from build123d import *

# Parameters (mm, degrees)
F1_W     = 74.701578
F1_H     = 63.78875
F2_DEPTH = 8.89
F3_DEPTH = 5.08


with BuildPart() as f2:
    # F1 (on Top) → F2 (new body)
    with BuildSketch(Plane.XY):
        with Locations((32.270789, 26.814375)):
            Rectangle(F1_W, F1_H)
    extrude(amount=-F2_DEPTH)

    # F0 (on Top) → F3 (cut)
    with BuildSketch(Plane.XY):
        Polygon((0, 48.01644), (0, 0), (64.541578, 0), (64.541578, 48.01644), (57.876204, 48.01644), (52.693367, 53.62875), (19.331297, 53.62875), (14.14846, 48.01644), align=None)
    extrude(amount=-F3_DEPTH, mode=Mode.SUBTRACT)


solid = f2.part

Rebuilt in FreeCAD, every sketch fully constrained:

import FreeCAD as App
import Part
import Sketcher
Q = App.Units.Quantity

doc = App.newDocument("Part")
body = doc.addObject("PartDesign::Body", "Body")

# Sketch on XY plane
sketch1 = body.newObject("Sketcher::SketchObject", "Sketch")
sketch1.AttachmentSupport = (doc.getObject("XY_Plane"), [""])
sketch1.MapMode = "FlatFace"
sketch1.addGeometry(Part.LineSegment(App.Vector(-5.08, 58.70875, 0), App.Vector(-5.08, -5.08, 0)), False)
sketch1.addGeometry(Part.LineSegment(App.Vector(-5.08, -5.08, 0), App.Vector(69.621578, -5.08, 0)), False)
sketch1.addGeometry(Part.LineSegment(App.Vector(69.621578, -5.08, 0), App.Vector(69.621578, 58.70875, 0)), False)
sketch1.addGeometry(Part.LineSegment(App.Vector(69.621578, 58.70875, 0), App.Vector(-5.08, 58.70875, 0)), False)
sketch1.addConstraint(Sketcher.Constraint("Coincident", 0, 2, 1, 1))
sketch1.addConstraint(Sketcher.Constraint("Coincident", 1, 2, 2, 1))
sketch1.addConstraint(Sketcher.Constraint("Coincident", 2, 2, 3, 1))
sketch1.addConstraint(Sketcher.Constraint("Coincident", 3, 2, 0, 1))
sketch1.addConstraint(Sketcher.Constraint("Vertical", 0))
sketch1.addConstraint(Sketcher.Constraint("Horizontal", 1))
sketch1.addConstraint(Sketcher.Constraint("Vertical", 2))
sketch1.addConstraint(Sketcher.Constraint("Horizontal", 3))
sketch1.addConstraint(Sketcher.Constraint("DistanceX", 0, 2, -1, 1, Q("0.2 in")))
sketch1.addConstraint(Sketcher.Constraint("DistanceY", 0, 2, -1, 1, Q("0.2 in")))
sketch1.addConstraint(Sketcher.Constraint("DistanceY", 0, 2, 0, 1, Q("63.78875 mm")))
sketch1.addConstraint(Sketcher.Constraint("DistanceX", 1, 1, 1, 2, Q("74.701578 mm")))
pad1 = body.newObject("PartDesign::Pad", "Pad")
pad1.Profile = sketch1
pad1.Length = Q("0.35 in")
pad1.Reversed = True

# Sketch on XY plane
sketch2 = body.newObject("Sketcher::SketchObject", "Sketch001")
sketch2.AttachmentSupport = (doc.getObject("XY_Plane"), [""])
sketch2.MapMode = "FlatFace"
sketch2.addGeometry(Part.LineSegment(App.Vector(0, 48.01644, 0), App.Vector(0, 0, 0)), False)
sketch2.addGeometry(Part.LineSegment(App.Vector(0, 0, 0), App.Vector(64.541578, 0, 0)), False)
sketch2.addGeometry(Part.LineSegment(App.Vector(64.541578, 0, 0), App.Vector(64.541578, 48.01644, 0)), False)
sketch2.addGeometry(Part.LineSegment(App.Vector(64.541578, 48.01644, 0), App.Vector(57.876204, 48.01644, 0)), False)
sketch2.addGeometry(Part.LineSegment(App.Vector(57.876204, 48.01644, 0), App.Vector(52.693367, 53.62875, 0)), False)
sketch2.addGeometry(Part.LineSegment(App.Vector(52.693367, 53.62875, 0), App.Vector(19.331297, 53.62875, 0)), False)
sketch2.addGeometry(Part.LineSegment(App.Vector(19.331297, 53.62875, 0), App.Vector(14.14846, 48.01644, 0)), False)
sketch2.addGeometry(Part.LineSegment(App.Vector(14.14846, 48.01644, 0), App.Vector(0, 48.01644, 0)), False)
sketch2.addConstraint(Sketcher.Constraint("Coincident", 0, 2, 1, 1))
sketch2.addConstraint(Sketcher.Constraint("Coincident", 1, 2, 2, 1))
sketch2.addConstraint(Sketcher.Constraint("Coincident", 2, 2, 3, 1))
sketch2.addConstraint(Sketcher.Constraint("Coincident", 3, 2, 4, 1))
sketch2.addConstraint(Sketcher.Constraint("Coincident", 4, 2, 5, 1))
sketch2.addConstraint(Sketcher.Constraint("Coincident", 5, 2, 6, 1))
sketch2.addConstraint(Sketcher.Constraint("Coincident", 6, 2, 7, 1))
sketch2.addConstraint(Sketcher.Constraint("Coincident", 7, 2, 0, 1))
sketch2.addConstraint(Sketcher.Constraint("Vertical", 0))
sketch2.addConstraint(Sketcher.Constraint("Horizontal", 1))
sketch2.addConstraint(Sketcher.Constraint("Vertical", 2))
sketch2.addConstraint(Sketcher.Constraint("Horizontal", 3))
sketch2.addConstraint(Sketcher.Constraint("Horizontal", 5))
sketch2.addConstraint(Sketcher.Constraint("Horizontal", 7))
sketch2.addConstraint(Sketcher.Constraint("Coincident", 0, 2, -1, 1))
sketch2.addConstraint(Sketcher.Constraint("Horizontal", 3, 2, 6, 2))
sketch2.addConstraint(Sketcher.Constraint("Equal", 4, 6))
sketch2.addConstraint(Sketcher.Constraint("DistanceX", 1, 1, 1, 2, Q("64.541578 mm")))
sketch2.addConstraint(Sketcher.Constraint("DistanceX", 5, 2, 5, 1, Q("33.36207 mm")))
sketch2.addConstraint(Sketcher.Constraint("DistanceX", 7, 2, 7, 1, Q("14.14846 mm")))
sketch2.addConstraint(Sketcher.Constraint("DistanceY", 0, 2, 0, 1, Q("48.01644 mm")))
sketch2.addConstraint(Sketcher.Constraint("Distance", 4, Q("7.63936 mm")))
sketch2.addConstraint(Sketcher.Constraint("DistanceX", 3, 2, 3, 1, Q("6.665374 mm")))
pocket1 = body.newObject("PartDesign::Pocket", "Pocket")
pocket1.Profile = sketch2
pocket1.Length = Q("0.2 in")

doc.recompute()
